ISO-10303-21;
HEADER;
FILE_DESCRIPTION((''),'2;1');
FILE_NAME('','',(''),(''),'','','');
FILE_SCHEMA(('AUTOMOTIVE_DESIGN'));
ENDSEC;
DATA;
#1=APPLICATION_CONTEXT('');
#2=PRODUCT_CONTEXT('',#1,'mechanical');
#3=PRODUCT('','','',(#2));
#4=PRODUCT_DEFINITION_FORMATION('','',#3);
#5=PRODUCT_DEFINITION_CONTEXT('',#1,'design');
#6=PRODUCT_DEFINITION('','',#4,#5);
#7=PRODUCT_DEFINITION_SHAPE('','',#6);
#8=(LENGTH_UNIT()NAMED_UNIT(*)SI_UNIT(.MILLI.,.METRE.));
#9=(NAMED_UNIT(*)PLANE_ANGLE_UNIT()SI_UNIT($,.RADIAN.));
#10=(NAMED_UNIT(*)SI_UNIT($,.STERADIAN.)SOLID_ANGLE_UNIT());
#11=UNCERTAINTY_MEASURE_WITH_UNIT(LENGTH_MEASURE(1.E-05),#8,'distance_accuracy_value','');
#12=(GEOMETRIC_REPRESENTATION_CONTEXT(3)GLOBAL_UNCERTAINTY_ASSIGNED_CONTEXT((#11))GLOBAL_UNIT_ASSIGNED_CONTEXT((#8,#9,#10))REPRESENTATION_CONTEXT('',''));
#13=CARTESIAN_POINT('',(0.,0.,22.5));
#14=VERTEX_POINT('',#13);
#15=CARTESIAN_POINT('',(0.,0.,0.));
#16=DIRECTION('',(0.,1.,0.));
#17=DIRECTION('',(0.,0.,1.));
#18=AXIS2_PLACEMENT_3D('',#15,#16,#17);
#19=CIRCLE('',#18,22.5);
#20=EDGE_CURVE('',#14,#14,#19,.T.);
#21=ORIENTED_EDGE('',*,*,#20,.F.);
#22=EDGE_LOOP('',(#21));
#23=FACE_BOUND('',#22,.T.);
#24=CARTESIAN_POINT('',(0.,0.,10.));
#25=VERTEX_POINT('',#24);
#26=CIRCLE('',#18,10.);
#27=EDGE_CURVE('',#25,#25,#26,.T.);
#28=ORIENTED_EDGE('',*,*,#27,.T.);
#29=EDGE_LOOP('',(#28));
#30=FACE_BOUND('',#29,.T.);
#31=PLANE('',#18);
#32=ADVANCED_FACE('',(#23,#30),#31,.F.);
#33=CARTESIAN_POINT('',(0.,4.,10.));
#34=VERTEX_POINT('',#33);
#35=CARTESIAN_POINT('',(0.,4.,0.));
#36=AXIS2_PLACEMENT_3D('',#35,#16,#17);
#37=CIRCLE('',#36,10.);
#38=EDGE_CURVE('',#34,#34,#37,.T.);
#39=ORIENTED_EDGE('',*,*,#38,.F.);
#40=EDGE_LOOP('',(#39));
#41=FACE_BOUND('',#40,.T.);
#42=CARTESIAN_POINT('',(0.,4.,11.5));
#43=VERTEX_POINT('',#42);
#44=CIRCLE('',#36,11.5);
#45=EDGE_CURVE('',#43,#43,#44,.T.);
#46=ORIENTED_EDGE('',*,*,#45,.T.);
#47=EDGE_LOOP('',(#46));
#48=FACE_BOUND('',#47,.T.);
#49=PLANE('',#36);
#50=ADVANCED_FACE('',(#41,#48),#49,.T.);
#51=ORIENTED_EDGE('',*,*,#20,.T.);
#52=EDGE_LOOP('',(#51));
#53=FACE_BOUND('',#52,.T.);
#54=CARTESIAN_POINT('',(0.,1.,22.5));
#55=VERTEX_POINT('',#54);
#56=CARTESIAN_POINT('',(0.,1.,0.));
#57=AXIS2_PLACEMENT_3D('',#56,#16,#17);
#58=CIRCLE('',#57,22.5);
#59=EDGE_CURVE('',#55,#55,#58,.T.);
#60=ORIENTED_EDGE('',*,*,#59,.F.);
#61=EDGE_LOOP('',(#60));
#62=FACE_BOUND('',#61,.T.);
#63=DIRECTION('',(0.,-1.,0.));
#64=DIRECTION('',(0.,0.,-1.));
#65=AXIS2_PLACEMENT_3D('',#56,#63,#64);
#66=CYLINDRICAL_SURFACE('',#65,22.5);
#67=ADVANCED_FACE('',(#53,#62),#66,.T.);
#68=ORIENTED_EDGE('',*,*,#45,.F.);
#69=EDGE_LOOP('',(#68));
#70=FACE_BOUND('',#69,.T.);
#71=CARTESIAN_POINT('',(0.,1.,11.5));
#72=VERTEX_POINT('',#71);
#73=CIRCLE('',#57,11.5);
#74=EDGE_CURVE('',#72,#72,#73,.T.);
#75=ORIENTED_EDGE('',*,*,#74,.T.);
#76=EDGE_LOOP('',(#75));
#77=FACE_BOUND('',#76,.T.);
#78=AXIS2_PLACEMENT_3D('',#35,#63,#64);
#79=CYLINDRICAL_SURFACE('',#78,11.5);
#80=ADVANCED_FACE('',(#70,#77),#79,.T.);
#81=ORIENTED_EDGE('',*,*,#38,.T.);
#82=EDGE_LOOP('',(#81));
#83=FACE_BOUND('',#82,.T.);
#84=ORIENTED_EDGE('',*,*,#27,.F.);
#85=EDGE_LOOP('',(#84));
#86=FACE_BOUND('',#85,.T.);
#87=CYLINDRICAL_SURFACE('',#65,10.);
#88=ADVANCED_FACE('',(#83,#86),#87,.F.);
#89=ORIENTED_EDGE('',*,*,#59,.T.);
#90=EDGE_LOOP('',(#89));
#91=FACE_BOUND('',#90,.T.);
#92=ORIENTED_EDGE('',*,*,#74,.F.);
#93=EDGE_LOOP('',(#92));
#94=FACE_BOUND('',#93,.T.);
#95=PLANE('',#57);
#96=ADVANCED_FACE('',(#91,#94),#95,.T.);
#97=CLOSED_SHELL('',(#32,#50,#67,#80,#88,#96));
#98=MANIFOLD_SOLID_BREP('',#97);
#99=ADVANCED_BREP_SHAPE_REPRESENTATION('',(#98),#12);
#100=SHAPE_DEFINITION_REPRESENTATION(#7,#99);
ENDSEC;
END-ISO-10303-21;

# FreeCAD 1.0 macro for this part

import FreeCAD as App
import Part
import Sketcher
Q = App.Units.Quantity

doc = App.newDocument("Part")
body = doc.addObject("PartDesign::Body", "Body")

# Sketch on XZ plane
sketch1 = body.newObject("Sketcher::SketchObject", "Sketch")
sketch1.AttachmentSupport = (doc.getObject("XZ_Plane"), [""])
sketch1.MapMode = "FlatFace"
sketch1.addGeometry([
    Part.Circle(App.Vector(0, 0, 0), App.Vector(0, 0, 1), 22),
    Part.Circle(App.Vector(0, 0, 0), App.Vector(0, 0, 1), 10),
], False)
sketch1.addConstraint([
    Sketcher.Constraint("Coincident", 0, 3, -1, 1),
    Sketcher.Constraint("Coincident", 1, 3, -1, 1),
    Sketcher.Constraint("Diameter", 0, Q("45 mm")),
    Sketcher.Constraint("Diameter", 1, Q("20 mm")),
])
pad1 = body.newObject("PartDesign::Pad", "Pad")
pad1.Profile = sketch1
pad1.Length = 1
pad1.Reversed = True

# Sketch on XZ plane
sketch2 = body.newObject("Sketcher::SketchObject", "Sketch001")
sketch2.AttachmentSupport = (doc.getObject("XZ_Plane"), [""])
sketch2.MapMode = "FlatFace"
sketch2.AttachmentOffset = App.Placement(App.Vector(0, 0, -1), App.Rotation())
sketch2.addGeometry(Part.Circle(App.Vector(0, 0, 0), App.Vector(0, 0, 1), 12), False)
sketch2.addConstraint([
    Sketcher.Constraint("Coincident", 0, 3, -1, 1),
    Sketcher.Constraint("Diameter", 0, Q("23 mm")),
])
pad2 = body.newObject("PartDesign::Pad", "Pad001")
pad2.Profile = sketch2
pad2.Length = 3
pad2.Reversed = True

# Sketch on XZ plane
sketch3 = body.newObject("Sketcher::SketchObject", "Sketch002")
sketch3.AttachmentSupport = (doc.getObject("XZ_Plane"), [""])
sketch3.MapMode = "FlatFace"
sketch3.AttachmentOffset = App.Placement(App.Vector(0, 0, -4), App.Rotation())
sketch3.addGeometry(Part.Circle(App.Vector(0, 0, 0), App.Vector(0, 0, 1), 10), False)
sketch3.addConstraint([
    Sketcher.Constraint("Coincident", 0, 3, -1, 1),
    Sketcher.Constraint("Diameter", 0, Q("20 mm")),
])
pocket1 = body.newObject("PartDesign::Pocket", "Pocket")
pocket1.Profile = sketch3
pocket1.Type = "UpToFirst"
pocket1.Reversed = True

doc.recompute()
